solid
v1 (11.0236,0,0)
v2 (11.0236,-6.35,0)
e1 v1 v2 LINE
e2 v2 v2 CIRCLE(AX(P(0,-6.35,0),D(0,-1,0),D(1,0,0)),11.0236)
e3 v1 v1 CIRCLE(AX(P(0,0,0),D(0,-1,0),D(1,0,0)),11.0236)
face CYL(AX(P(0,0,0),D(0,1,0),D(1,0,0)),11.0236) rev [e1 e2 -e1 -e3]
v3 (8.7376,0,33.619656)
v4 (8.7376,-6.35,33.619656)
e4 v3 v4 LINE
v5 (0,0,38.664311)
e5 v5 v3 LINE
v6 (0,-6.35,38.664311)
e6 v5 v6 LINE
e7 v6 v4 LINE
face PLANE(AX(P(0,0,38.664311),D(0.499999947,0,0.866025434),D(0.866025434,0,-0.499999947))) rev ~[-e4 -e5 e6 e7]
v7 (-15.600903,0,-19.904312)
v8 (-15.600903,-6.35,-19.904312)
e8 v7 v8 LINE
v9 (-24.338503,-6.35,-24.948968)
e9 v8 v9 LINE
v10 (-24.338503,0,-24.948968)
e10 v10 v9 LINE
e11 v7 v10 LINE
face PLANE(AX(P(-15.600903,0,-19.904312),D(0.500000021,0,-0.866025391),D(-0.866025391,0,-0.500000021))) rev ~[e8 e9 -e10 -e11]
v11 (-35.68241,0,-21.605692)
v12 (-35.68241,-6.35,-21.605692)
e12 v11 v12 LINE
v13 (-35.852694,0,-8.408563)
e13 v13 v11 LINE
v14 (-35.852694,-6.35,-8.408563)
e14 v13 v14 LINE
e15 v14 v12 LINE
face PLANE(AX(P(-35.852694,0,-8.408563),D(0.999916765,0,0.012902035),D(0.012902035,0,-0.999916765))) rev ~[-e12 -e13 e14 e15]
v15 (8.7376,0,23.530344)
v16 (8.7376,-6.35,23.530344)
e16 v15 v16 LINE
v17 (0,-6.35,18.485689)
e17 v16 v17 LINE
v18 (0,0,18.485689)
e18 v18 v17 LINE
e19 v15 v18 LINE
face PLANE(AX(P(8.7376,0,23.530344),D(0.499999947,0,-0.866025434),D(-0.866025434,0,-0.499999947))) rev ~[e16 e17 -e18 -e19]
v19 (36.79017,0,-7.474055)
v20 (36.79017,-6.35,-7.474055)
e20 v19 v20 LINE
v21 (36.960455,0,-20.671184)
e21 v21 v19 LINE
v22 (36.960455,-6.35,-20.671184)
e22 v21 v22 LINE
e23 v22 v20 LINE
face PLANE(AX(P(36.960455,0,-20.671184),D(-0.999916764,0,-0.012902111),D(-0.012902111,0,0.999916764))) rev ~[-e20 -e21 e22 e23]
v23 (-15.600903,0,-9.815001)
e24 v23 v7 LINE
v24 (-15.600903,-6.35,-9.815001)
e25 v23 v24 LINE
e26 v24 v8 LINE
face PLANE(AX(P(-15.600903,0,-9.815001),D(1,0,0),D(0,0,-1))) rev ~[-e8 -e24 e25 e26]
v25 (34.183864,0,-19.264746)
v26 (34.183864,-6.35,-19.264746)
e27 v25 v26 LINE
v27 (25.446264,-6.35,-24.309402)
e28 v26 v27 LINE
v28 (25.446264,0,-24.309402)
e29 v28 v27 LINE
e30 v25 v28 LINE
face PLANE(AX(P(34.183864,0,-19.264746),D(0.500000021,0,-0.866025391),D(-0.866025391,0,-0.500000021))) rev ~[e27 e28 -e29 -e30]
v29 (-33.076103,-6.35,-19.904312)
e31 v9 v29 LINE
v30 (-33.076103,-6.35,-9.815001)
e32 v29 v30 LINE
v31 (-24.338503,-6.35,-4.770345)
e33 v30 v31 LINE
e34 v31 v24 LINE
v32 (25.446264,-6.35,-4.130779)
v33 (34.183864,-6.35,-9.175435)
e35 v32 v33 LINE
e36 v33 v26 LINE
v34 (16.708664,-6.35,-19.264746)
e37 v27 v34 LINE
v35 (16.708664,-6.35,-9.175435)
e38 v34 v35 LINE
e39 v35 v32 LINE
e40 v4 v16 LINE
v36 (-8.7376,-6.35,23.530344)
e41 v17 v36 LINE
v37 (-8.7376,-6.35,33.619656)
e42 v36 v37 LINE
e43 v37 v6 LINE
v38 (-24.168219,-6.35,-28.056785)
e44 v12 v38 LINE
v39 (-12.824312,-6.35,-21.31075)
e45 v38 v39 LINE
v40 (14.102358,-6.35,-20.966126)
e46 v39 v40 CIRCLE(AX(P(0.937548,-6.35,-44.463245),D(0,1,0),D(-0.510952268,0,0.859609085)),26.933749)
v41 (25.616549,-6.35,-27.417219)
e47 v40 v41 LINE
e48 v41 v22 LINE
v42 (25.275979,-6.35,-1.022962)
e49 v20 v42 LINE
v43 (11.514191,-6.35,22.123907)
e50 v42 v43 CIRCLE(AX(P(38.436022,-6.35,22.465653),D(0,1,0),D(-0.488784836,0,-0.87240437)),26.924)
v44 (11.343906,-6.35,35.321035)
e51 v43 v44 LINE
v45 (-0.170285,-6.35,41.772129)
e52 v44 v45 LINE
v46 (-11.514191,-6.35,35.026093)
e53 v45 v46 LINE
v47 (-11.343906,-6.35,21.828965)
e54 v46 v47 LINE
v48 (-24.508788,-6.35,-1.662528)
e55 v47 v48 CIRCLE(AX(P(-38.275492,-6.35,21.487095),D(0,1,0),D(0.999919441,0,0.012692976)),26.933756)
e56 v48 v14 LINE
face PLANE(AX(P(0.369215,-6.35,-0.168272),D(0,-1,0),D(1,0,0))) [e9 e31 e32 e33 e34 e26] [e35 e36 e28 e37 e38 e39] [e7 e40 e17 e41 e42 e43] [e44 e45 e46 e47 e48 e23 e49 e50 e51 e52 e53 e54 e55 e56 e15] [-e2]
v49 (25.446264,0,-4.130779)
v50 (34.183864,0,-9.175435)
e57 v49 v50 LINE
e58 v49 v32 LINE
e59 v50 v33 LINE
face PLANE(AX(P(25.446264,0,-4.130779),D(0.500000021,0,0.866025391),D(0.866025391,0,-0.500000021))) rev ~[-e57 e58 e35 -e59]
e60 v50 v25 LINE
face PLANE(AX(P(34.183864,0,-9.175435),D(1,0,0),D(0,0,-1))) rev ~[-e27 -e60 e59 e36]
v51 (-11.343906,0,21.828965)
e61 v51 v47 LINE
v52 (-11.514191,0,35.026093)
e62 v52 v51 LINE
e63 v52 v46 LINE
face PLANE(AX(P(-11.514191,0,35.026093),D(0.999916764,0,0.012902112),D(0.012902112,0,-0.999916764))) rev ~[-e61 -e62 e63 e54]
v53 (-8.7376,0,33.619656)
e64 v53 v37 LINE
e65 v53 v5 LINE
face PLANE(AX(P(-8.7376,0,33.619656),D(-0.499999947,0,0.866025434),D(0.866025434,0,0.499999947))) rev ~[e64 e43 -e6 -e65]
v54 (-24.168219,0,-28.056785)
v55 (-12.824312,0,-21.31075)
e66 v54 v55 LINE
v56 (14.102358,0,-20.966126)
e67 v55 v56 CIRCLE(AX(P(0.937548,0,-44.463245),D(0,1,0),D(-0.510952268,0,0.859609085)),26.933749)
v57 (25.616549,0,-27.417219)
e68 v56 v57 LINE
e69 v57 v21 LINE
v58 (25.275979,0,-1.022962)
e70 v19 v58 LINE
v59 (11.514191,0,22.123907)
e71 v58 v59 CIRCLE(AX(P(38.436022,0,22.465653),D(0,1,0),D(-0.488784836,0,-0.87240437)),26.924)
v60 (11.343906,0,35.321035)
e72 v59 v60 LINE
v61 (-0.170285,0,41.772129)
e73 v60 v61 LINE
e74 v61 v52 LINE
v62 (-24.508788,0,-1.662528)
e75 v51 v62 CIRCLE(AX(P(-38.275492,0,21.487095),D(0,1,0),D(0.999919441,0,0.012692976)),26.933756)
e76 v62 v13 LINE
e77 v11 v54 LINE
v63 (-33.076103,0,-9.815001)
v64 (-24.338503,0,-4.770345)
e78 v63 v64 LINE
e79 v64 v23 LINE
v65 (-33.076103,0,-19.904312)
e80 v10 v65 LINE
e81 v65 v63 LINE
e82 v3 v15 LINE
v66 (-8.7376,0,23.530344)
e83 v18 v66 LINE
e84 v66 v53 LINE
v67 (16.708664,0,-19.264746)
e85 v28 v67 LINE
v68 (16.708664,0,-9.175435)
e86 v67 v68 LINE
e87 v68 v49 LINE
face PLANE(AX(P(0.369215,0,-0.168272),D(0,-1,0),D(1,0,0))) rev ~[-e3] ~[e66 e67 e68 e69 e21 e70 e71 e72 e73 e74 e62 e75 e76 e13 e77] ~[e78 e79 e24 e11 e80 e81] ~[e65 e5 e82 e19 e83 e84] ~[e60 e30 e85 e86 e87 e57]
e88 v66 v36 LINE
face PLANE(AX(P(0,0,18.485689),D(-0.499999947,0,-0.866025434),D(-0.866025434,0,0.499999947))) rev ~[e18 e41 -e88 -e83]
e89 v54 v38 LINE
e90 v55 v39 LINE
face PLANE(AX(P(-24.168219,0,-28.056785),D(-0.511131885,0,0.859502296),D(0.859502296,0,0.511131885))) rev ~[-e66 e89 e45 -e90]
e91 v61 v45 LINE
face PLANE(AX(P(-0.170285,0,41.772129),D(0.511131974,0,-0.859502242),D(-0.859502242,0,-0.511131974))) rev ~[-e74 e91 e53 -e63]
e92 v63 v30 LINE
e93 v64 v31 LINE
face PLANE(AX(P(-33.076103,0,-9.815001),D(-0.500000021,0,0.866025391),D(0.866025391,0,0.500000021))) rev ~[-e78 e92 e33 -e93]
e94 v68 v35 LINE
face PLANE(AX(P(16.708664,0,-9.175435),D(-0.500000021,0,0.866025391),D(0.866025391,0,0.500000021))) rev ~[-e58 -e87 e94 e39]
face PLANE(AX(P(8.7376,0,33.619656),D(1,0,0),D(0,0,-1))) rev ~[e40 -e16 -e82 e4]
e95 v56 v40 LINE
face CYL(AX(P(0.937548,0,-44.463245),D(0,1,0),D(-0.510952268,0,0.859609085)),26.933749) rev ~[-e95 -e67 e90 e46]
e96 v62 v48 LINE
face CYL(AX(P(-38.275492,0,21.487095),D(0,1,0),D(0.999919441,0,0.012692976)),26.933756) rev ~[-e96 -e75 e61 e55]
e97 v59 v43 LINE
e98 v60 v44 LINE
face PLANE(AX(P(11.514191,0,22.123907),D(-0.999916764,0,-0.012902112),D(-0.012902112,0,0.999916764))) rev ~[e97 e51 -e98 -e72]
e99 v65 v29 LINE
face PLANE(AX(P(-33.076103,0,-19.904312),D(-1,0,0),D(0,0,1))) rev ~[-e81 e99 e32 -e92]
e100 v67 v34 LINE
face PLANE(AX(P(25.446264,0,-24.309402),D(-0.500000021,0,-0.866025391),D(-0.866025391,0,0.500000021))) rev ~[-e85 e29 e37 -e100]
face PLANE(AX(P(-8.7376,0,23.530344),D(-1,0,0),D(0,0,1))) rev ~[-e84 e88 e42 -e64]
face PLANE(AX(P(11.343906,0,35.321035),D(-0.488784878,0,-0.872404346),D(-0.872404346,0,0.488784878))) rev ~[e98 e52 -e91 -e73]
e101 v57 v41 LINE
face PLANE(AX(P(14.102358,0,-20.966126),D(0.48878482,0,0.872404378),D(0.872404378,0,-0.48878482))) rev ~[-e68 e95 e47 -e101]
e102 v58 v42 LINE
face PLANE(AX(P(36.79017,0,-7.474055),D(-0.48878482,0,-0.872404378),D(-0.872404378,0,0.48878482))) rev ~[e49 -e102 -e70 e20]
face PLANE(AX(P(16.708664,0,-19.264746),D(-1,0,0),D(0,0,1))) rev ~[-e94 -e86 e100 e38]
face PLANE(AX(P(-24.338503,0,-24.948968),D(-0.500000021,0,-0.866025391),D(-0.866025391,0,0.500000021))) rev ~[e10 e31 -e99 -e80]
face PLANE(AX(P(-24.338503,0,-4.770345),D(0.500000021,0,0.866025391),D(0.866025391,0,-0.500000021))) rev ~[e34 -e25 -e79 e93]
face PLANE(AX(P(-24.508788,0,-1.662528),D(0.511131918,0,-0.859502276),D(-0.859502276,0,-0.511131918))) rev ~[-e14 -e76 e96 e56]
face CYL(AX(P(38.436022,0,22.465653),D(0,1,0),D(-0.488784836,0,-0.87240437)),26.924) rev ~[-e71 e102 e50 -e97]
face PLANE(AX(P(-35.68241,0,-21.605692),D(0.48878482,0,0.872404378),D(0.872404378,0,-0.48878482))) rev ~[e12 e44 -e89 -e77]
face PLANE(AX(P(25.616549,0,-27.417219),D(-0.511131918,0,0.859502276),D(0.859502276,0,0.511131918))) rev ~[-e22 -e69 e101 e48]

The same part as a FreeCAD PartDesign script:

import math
import FreeCAD as App
import Part
import Sketcher
from FreeCAD import Vector
Q = App.Units.Quantity

doc = App.newDocument("Part")
body = doc.addObject("PartDesign::Body", "Body")

sketch1 = doc.addObject("Sketcher::SketchObject", "Sketch")
body.addObject(sketch1)
sketch1.AttachmentSupport = (doc.XZ_Plane, [""])
sketch1.MapMode = "FlatFace"
sketch1.addGeometry([
    Part.ArcOfCircle(Part.Circle(Vector(38.436022, 22.465653, 0), Vector(0, 0, 1), 26.924), math.radians(-179.272726), math.radians(-119.260744)),
    Part.LineSegment(Vector(11.514191, 22.123907, 0), Vector(11.343906, 35.321035, 0)),
    Part.LineSegment(Vector(11.343906, 35.321035, 0), Vector(-0.170285, 41.772129, 0)),
    Part.LineSegment(Vector(-0.170285, 41.772129, 0), Vector(-11.514191, 35.026093, 0)),
    Part.LineSegment(Vector(-11.514191, 35.026093, 0), Vector(-11.343906, 21.828965, 0)),
    Part.ArcOfCircle(Part.Circle(Vector(-38.275492, 21.487095, 0), Vector(0, 0, 1), 26.933756), math.radians(-59.26074), math.radians(0.727273)),
    Part.LineSegment(Vector(-24.508788, -1.662528, 0), Vector(-35.852694, -8.408563, 0)),
    Part.LineSegment(Vector(-35.852694, -8.408563, 0), Vector(-35.68241, -21.605692, 0)),
    Part.LineSegment(Vector(-35.68241, -21.605692, 0), Vector(-24.168219, -28.056785, 0)),
    Part.LineSegment(Vector(-24.168219, -28.056785, 0), Vector(-12.824312, -21.31075, 0)),
    Part.ArcOfCircle(Part.Circle(Vector(0.937548, -44.463245, 0), Vector(0, 0, 1), 26.933749), math.radians(60.739252), math.radians(120.727281)),
    Part.LineSegment(Vector(14.102358, -20.966126, 0), Vector(25.616549, -27.417219, 0)),
    Part.LineSegment(Vector(25.616549, -27.417219, 0), Vector(36.960455, -20.671184, 0)),
    Part.LineSegment(Vector(36.960455, -20.671184, 0), Vector(36.79017, -7.474055, 0)),
    Part.LineSegment(Vector(36.79017, -7.474055, 0), Vector(25.275979, -1.022962, 0)),
    Part.LineSegment(Vector(-15.600903, -9.815001, 0), Vector(-15.600903, -19.904312, 0)),
    Part.LineSegment(Vector(-15.600903, -19.904312, 0), Vector(-24.338503, -24.948968, 0)),
    Part.LineSegment(Vector(-24.338503, -24.948968, 0), Vector(-33.076103, -19.904312, 0)),
    Part.LineSegment(Vector(-33.076103, -19.904312, 0), Vector(-33.076103, -9.815001, 0)),
    Part.LineSegment(Vector(-33.076103, -9.815001, 0), Vector(-24.338503, -4.770345, 0)),
    Part.LineSegment(Vector(-24.338503, -4.770345, 0), Vector(-15.600903, -9.815001, 0)),
    Part.Circle(Vector(0, 0, 0), Vector(0, 0, 1), 11.0236),
    Part.LineSegment(Vector(16.708664, -9.175435, 0), Vector(25.446264, -4.130779, 0)),
    Part.LineSegment(Vector(25.446264, -4.130779, 0), Vector(34.183864, -9.175435, 0)),
    Part.LineSegment(Vector(34.183864, -9.175435, 0), Vector(34.183864, -19.264746, 0)),
    Part.LineSegment(Vector(34.183864, -19.264746, 0), Vector(25.446264, -24.309402, 0)),
    Part.LineSegment(Vector(25.446264, -24.309402, 0), Vector(16.708664, -19.264746, 0)),
    Part.LineSegment(Vector(16.708664, -19.264746, 0), Vector(16.708664, -9.175435, 0)),
    Part.LineSegment(Vector(-8.7376, 33.619656, 0), Vector(0, 38.664311, 0)),
    Part.LineSegment(Vector(0, 38.664311, 0), Vector(8.7376, 33.619656, 0)),
    Part.LineSegment(Vector(8.7376, 33.619656, 0), Vector(8.7376, 23.530344, 0)),
    Part.LineSegment(Vector(8.7376, 23.530344, 0), Vector(0, 18.485689, 0)),
    Part.LineSegment(Vector(0, 18.485689, 0), Vector(-8.7376, 23.530344, 0)),
    Part.LineSegment(Vector(-8.7376, 23.530344, 0), Vector(-8.7376, 33.619656, 0)),
], False)
sketch1.addConstraint([
    Sketcher.Constraint("Coincident", 0, 1, 1, 1),
    Sketcher.Constraint("Coincident", 1, 2, 2, 1),
    Sketcher.Constraint("Coincident", 2, 2, 3, 1),
    Sketcher.Constraint("Coincident", 3, 2, 4, 1),
    Sketcher.Constraint("Coincident", 4, 2, 5, 2),
    Sketcher.Constraint("Coincident", 5, 1, 6, 1),
    Sketcher.Constraint("Coincident", 6, 2, 7, 1),
    Sketcher.Constraint("Coincident", 7, 2, 8, 1),
    Sketcher.Constraint("Coincident", 8, 2, 9, 1),
    Sketcher.Constraint("Coincident", 9, 2, 10, 2),
    Sketcher.Constraint("Coincident", 10, 1, 11, 1),
    Sketcher.Constraint("Coincident", 11, 2, 12, 1),
    Sketcher.Constraint("Coincident", 12, 2, 13, 1),
    Sketcher.Constraint("Coincident", 13, 2, 14, 1),
    Sketcher.Constraint("Coincident", 14, 2, 0, 2),
    Sketcher.Constraint("Coincident", 15, 2, 16, 1),
    Sketcher.Constraint("Coincident", 16, 2, 17, 1),
    Sketcher.Constraint("Coincident", 17, 2, 18, 1),
    Sketcher.Constraint("Coincident", 18, 2, 19, 1),
    Sketcher.Constraint("Coincident", 19, 2, 20, 1),
    Sketcher.Constraint("Coincident", 20, 2, 15, 1),
    Sketcher.Constraint("Coincident", 22, 2, 23, 1),
    Sketcher.Constraint("Coincident", 23, 2, 24, 1),
    Sketcher.Constraint("Coincident", 24, 2, 25, 1),
    Sketcher.Constraint("Coincident", 25, 2, 26, 1),
    Sketcher.Constraint("Coincident", 26, 2, 27, 1),
    Sketcher.Constraint("Coincident", 27, 2, 22, 1),
    Sketcher.Constraint("Coincident", 28, 2, 29, 1),
    Sketcher.Constraint("Coincident", 29, 2, 30, 1),
    Sketcher.Constraint("Coincident", 30, 2, 31, 1),
    Sketcher.Constraint("Coincident", 31, 2, 32, 1),
    Sketcher.Constraint("Coincident", 32, 2, 33, 1),
    Sketcher.Constraint("Coincident", 33, 2, 28, 1),
    Sketcher.Constraint("Vertical", 15),
    Sketcher.Constraint("Vertical", 18),
    Sketcher.Constraint("Vertical", 24),
    Sketcher.Constraint("Vertical", 27),
    Sketcher.Constraint("Vertical", 30),
    Sketcher.Constraint("Vertical", 33),
    Sketcher.Constraint("Coincident", 21, 3, -1, 1),
    Sketcher.Constraint("PointOnObject", 28, 2, -2),
    Sketcher.Constraint("PointOnObject", 31, 2, -2),
    Sketcher.Constraint("Radius", 0, Q("1.06 in")),
    Sketcher.Constraint("Diameter", 21, Q("0.868 in")),
    Sketcher.Constraint("DistanceX", -1, 1, 29, 2, Q("0.344 in")),
    Sketcher.Constraint("DistanceX", 32, 2, -1, 1, Q("0.344 in")),
    Sketcher.Constraint("Radius", 10, Q("26.933749 mm")),
    Sketcher.Constraint("DistanceX", 16, 2, 15, 2, Q("0.344 in")),
    Sketcher.Constraint("DistanceX", 17, 2, 16, 2, Q("0.344 in")),
    Sketcher.Constraint("DistanceX", 18, 2, 19, 2, Q("0.344 in")),
    Sketcher.Constraint("DistanceX", 22, 2, 23, 2, Q("0.344 in")),
    Sketcher.Constraint("DistanceX", 25, 2, 24, 2, Q("0.344 in")),
    Sketcher.Constraint("DistanceX", 26, 2, 25, 2, Q("0.344 in")),
    Sketcher.Constraint("Radius", 5, Q("26.933756 mm")),
    Sketcher.Constraint("DistanceY", 15, 2, 15, 1, Q("10.089311 mm")),
    Sketcher.Constraint("DistanceY", 18, 1, 18, 2, Q("10.089311 mm")),
    Sketcher.Constraint("DistanceY", 24, 2, 24, 1, Q("10.089311 mm")),
    Sketcher.Constraint("DistanceY", 27, 1, 27, 2, Q("10.089311 mm")),
    Sketcher.Constraint("DistanceY", 18, 2, -1, 1, Q("9.815001 mm")),
    Sketcher.Constraint("DistanceY", 20, 2, -1, 1, Q("9.815001 mm")),
    Sketcher.Constraint("DistanceY", 25, 2, -1, 1, Q("24.309402 mm")),
    Sketcher.Constraint("DistanceY", 10, 3, 0, 3, Q("66.928898 mm")),
    Sketcher.Constraint("DistanceX", 5, 3, 1, 2, Q("49.619398 mm")),
    Sketcher.Constraint("DistanceX", 5, 3, 3, 2, Q("26.761301 mm")),
    Sketcher.Constraint("DistanceX", 5, 3, 6, 2, Q("2.422798 mm")),
    Sketcher.Constraint("DistanceY", 10, 1, 5, 1, Q("19.303598 mm")),
    Sketcher.Constraint("DistanceX", 10, 3, 11, 2, Q("24.679001 mm")),
    Sketcher.Constraint("Distance", 16, Q("10.089312 mm")),
    Sketcher.Constraint("Distance", 19, Q("10.089312 mm")),
    Sketcher.Constraint("Distance", 22, Q("10.089312 mm")),
    Sketcher.Constraint("Distance", 23, Q("10.089312 mm")),
    Sketcher.Constraint("Distance", 25, Q("10.089312 mm")),
    Sketcher.Constraint("Distance", 28, Q("10.089311 mm")),
    Sketcher.Constraint("Distance", 29, Q("10.089311 mm")),
    Sketcher.Constraint("Distance", 31, Q("10.089311 mm")),
    Sketcher.Constraint("Distance", 32, Q("10.089311 mm")),
    Sketcher.Constraint("DistanceY", 30, 2, 30, 1, Q("10.089312 mm")),
    Sketcher.Constraint("DistanceX", -1, 1, 0, 3, Q("38.436022 mm")),
    Sketcher.Constraint("DistanceX", -1, 1, 10, 3, Q("0.937548 mm")),
    Sketcher.Constraint("DistanceX", -1, 1, 0, 1, Q("11.514191 mm")),
    Sketcher.Constraint("DistanceY", -1, 1, 2, 2, Q("41.772129 mm")),
    Sketcher.Constraint("DistanceX", 3, 2, -1, 1, Q("11.514191 mm")),
    Sketcher.Constraint("DistanceX", 5, 1, -1, 1, Q("24.508788 mm")),
    Sketcher.Constraint("DistanceX", 7, 2, -1, 1, Q("35.68241 mm")),
    Sketcher.Constraint("DistanceX", 8, 2, -1, 1, Q("24.168219 mm")),
    Sketcher.Constraint("DistanceY", 9, 2, -1, 1, Q("21.31075 mm")),
    Sketcher.Constraint("DistanceY", 11, 2, -1, 1, Q("27.417219 mm")),
    Sketcher.Constraint("DistanceX", -1, 1, 13, 2, Q("36.79017 mm")),
    Sketcher.Constraint("DistanceX", -1, 1, 14, 2, Q("25.275979 mm")),
    Sketcher.Constraint("DistanceY", 14, 2, -1, 1, Q("1.022962 mm")),
    Sketcher.Constraint("DistanceY", -1, 1, 28, 2, Q("38.664311 mm")),
    Sketcher.Constraint("DistanceY", 10, 3, 5, 3, Q("65.950341 mm")),
    Sketcher.Constraint("DistanceY", 0, 1, 1, 2, Q("13.197128 mm")),
    Sketcher.Constraint("DistanceX", 2, 2, 1, 2, Q("11.514191 mm")),
    Sketcher.Constraint("DistanceY", 3, 2, 1, 2, Q("0.294942 mm")),
    Sketcher.Constraint("DistanceY", 4, 2, 3, 2, Q("13.197128 mm")),
    Sketcher.Constraint("DistanceY", 6, 2, 5, 3, Q("29.895658 mm")),
    Sketcher.Constraint("DistanceY", 7, 2, 6, 2, Q("13.197129 mm")),
    Sketcher.Constraint("DistanceY", 10, 3, 8, 2, Q("16.40646 mm")),
    Sketcher.Constraint("DistanceY", 10, 3, 12, 2, Q("23.792061 mm")),
    Sketcher.Constraint("DistanceY", 12, 2, 13, 2, Q("13.197129 mm")),
    Sketcher.Constraint("DistanceX", 15, 2, 9, 2, Q("2.776591 mm")),
    Sketcher.Constraint("DistanceX", 22, 2, 12, 2, Q("11.514191 mm")),
    Sketcher.Constraint("Distance", 12, Q("13.198227 mm")),
])
pad1 = doc.addObject("PartDesign::Pad", "Pad")
body.addObject(pad1)
pad1.Profile = sketch1
pad1.Length = Q("0.25 in")

doc.recompute()
